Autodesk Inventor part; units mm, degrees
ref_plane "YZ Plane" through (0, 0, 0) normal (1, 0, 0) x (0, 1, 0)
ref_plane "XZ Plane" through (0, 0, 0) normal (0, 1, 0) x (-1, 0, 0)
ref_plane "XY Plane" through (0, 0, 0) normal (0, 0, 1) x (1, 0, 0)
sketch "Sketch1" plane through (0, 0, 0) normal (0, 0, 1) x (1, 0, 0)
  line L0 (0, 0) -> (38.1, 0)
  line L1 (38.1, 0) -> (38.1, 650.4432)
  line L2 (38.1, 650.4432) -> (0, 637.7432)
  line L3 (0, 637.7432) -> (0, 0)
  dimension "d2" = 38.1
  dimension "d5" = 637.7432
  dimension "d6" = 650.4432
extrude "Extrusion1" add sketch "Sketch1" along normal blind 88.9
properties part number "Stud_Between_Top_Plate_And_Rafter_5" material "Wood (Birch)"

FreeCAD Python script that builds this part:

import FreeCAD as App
import Part
import Sketcher

V = App.Vector
Q = App.Units.Quantity


def add_polygon(sketch, points):
    """Adds a closed chain of lines whose ends are joined by coincident constraints."""
    first, n = sketch.GeometryCount, len(points)
    for a, b in zip(points, points[1:] + points[:1]):
        sketch.addGeometry(Part.LineSegment(App.Vector(*a, 0), App.Vector(*b, 0)), False)
    for i in range(n):
        sketch.addConstraint(Sketcher.Constraint("Coincident", first + i, 2, first + (i + 1) % n, 1))

doc = App.newDocument("Part")
params = doc.addObject("Spreadsheet::Sheet", "Params")
for row, (alias, value) in enumerate([
    ("sketch1_width", "1.5 in"),
    ("sketch1_height", "25.108 in"),
    ("sketch1_height2", "25.608 in"),
    ("pad1_length", "3.5 in"),
], start=1):
    params.set(f"A{row}", alias)
    params.set(f"B{row}", "=" + value)
    params.setAlias(f"B{row}", alias)

body = doc.addObject("PartDesign::Body", "Body")

sketch1 = body.newObject("Sketcher::SketchObject", "Sketch")
sketch1.AttachmentSupport = (doc.getObject("XY_Plane"), [""])
sketch1.MapMode = "FlatFace"
add_polygon(sketch1, [(0, 638), (0, 0), (38, 0), (38, 650)])
sketch1.addConstraint(Sketcher.Constraint("Vertical", 0))
sketch1.addConstraint(Sketcher.Constraint("Horizontal", 1))
sketch1.addConstraint(Sketcher.Constraint("Vertical", 2))
sketch1.addConstraint(Sketcher.Constraint("Coincident", 0, 2, -1, 1))
sketch1.addConstraint(Sketcher.Constraint("DistanceX", 1, 1, 1, 2, Q("1.5 in")))
sketch1.addConstraint(Sketcher.Constraint("DistanceY", 0, 2, 0, 1, Q("25.108 in")))
sketch1.addConstraint(Sketcher.Constraint("DistanceY", 2, 1, 2, 2, Q("25.608 in")))
sketch1.setExpression("Constraints[8]", "Params.sketch1_width")
sketch1.setExpression("Constraints[9]", "Params.sketch1_height")
sketch1.setExpression("Constraints[10]", "Params.sketch1_height2")
pad1 = body.newObject("PartDesign::Pad", "Pad")
pad1.Profile = sketch1
pad1.setExpression("Length", "Params.pad1_length")

doc.recompute()
